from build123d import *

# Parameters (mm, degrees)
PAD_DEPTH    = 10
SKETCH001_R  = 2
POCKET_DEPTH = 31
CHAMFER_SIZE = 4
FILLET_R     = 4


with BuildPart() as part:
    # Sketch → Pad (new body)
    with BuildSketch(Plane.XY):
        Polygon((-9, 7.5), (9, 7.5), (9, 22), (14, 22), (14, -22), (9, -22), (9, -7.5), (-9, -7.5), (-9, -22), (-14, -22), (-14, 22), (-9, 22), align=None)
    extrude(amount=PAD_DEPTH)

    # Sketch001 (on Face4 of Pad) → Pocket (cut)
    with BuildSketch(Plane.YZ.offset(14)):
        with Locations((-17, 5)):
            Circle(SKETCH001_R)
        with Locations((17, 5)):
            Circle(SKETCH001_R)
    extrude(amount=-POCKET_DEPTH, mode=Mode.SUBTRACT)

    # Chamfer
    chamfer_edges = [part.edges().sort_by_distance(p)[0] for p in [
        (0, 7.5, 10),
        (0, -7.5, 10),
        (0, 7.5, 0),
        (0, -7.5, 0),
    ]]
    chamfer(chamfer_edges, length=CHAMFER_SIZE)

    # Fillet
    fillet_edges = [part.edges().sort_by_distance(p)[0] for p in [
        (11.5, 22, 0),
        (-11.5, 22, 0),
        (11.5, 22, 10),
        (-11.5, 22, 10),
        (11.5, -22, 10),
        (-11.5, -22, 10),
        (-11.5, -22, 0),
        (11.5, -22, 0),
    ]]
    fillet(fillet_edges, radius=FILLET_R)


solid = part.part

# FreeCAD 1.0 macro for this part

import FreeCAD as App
import Part
import Sketcher

V = App.Vector
Q = App.Units.Quantity


def edges_at(feature, points):
    """Names of the edges that pass closest to the given points."""
    edges = feature.Shape.Edges
    near = lambda p: min(range(len(edges)), key=lambda i: edges[i].distToShape(Part.Vertex(*p))[0])
    return sorted({f"Edge{near(p) + 1}" for p in points})


def add_polygon(sketch, points):
    """Adds a closed chain of lines whose ends are joined by coincident constraints."""
    first, n = sketch.GeometryCount, len(points)
    for a, b in zip(points, points[1:] + points[:1]):
        sketch.addGeometry(Part.LineSegment(App.Vector(*a, 0), App.Vector(*b, 0)), False)
    for i in range(n):
        sketch.addConstraint(Sketcher.Constraint("Coincident", first + i, 2, first + (i + 1) % n, 1))

doc = App.newDocument("Part")
params = doc.addObject("Spreadsheet::Sheet", "Params")
for row, (alias, value) in enumerate([
    ("sketch1_width", "18 mm"),
    ("sketch1_width2", "5 mm"),
    ("sketch1_height", "44 mm"),
    ("sketch1_height2", "14.5 mm"),
    ("pad1_length", "10 mm"),
    ("sketch2_diameter", "4 mm"),
    ("pocket1_length", "31 mm"),
    ("chamfer_size", "4 mm"),
    ("fillet_radius", "4 mm"),
], start=1):
    params.set(f"A{row}", alias)
    params.set(f"B{row}", "=" + value)
    params.setAlias(f"B{row}", alias)

body = doc.addObject("PartDesign::Body", "Body")

sketch1 = body.newObject("Sketcher::SketchObject", "Sketch")
sketch1.AttachmentSupport = (doc.getObject("XY_Plane"), [""])
sketch1.MapMode = "FlatFace"
add_polygon(sketch1, [(9, 8), (-9, 8), (-9, 22), (-14, 22), (-14, -22), (-9, -22), (-9, -8), (9, -8), (9, -22), (14, -22), (14, 22), (9, 22)])
sketch1.addConstraint(Sketcher.Constraint("Horizontal", 0))
sketch1.addConstraint(Sketcher.Constraint("Vertical", 1))
sketch1.addConstraint(Sketcher.Constraint("Horizontal", 2))
sketch1.addConstraint(Sketcher.Constraint("Vertical", 3))
sketch1.addConstraint(Sketcher.Constraint("Horizontal", 4))
sketch1.addConstraint(Sketcher.Constraint("Vertical", 5))
sketch1.addConstraint(Sketcher.Constraint("Horizontal", 6))
sketch1.addConstraint(Sketcher.Constraint("Vertical", 7))
sketch1.addConstraint(Sketcher.Constraint("Horizontal", 8))
sketch1.addConstraint(Sketcher.Constraint("Vertical", 9))
sketch1.addConstraint(Sketcher.Constraint("Horizontal", 10))
sketch1.addConstraint(Sketcher.Constraint("Vertical", 11))
sketch1.addConstraint(Sketcher.Constraint("Symmetric", 0, 2, 6, 2, -1, 1))
sketch1.addConstraint(Sketcher.Constraint("Symmetric", 2, 2, 8, 2, -1, 1))
sketch1.addConstraint(Sketcher.Constraint("Symmetric", 4, 2, 10, 2, -1, 1))
sketch1.addConstraint(Sketcher.Constraint("Symmetric", 4, 2, 7, 2, -2))
sketch1.addConstraint(Sketcher.Constraint("DistanceX", 0, 2, 0, 1, Q("18 mm")))
sketch1.addConstraint(Sketcher.Constraint("DistanceX", 2, 2, 2, 1, Q("5 mm")))
sketch1.addConstraint(Sketcher.Constraint("DistanceY", 3, 2, 3, 1, Q("44 mm")))
sketch1.addConstraint(Sketcher.Constraint("DistanceY", 1, 1, 1, 2, Q("14.5 mm")))
sketch1.setExpression("Constraints[28]", "Params.sketch1_width")
sketch1.setExpression("Constraints[29]", "Params.sketch1_width2")
sketch1.setExpression("Constraints[30]", "Params.sketch1_height")
sketch1.setExpression("Constraints[31]", "Params.sketch1_height2")
pad1 = body.newObject("PartDesign::Pad", "Pad")
pad1.Profile = sketch1
pad1.setExpression("Length", "Params.pad1_length")

sketch2 = body.newObject("Sketcher::SketchObject", "Sketch001")
sketch2.AttachmentSupport = (doc.getObject("YZ_Plane"), [""])
sketch2.MapMode = "FlatFace"
sketch2.AttachmentOffset = App.Placement(V(0, 0, 14), App.Rotation())
sketch2.addGeometry(Part.Circle(V(-17, 5, 0), V(0, 0, 1), 2), False)
sketch2.addGeometry(Part.Circle(V(17, 5, 0), V(0, 0, 1), 2), False)
sketch2.addConstraint(Sketcher.Constraint("Equal", 0, 1))
sketch2.addConstraint(Sketcher.Constraint("Symmetric", 0, 3, 1, 3, -2))
sketch2.addConstraint(Sketcher.Constraint("Diameter", 0, Q("4 mm")))
sketch2.addConstraint(Sketcher.Constraint("DistanceX", 0, 3, -1, 1, Q("17 mm")))
sketch2.addConstraint(Sketcher.Constraint("DistanceY", -1, 1, 0, 3, Q("5 mm")))
sketch2.setExpression("Constraints[2]", "Params.sketch2_diameter")
pocket1 = body.newObject("PartDesign::Pocket", "Pocket")
pocket1.Profile = sketch2
pocket1.setExpression("Length", "Params.pocket1_length")
doc.recompute()

chamfer = body.newObject("PartDesign::Chamfer", "Chamfer")
chamfer.Base = (pocket1, edges_at(pocket1, [
    (0, 7.5, 10),
    (0, -7.5, 10),
    (0, 7.5, 0),
    (0, -7.5, 0),
]))
chamfer.setExpression("Size", "Params.chamfer_size")
doc.recompute()

fillet = body.newObject("PartDesign::Fillet", "Fillet")
fillet.Base = (chamfer, edges_at(chamfer, [
    (11.5, 22, 0),
    (-11.5, 22, 0),
    (11.5, 22, 10),
    (-11.5, 22, 10),
    (11.5, -22, 10),
    (-11.5, -22, 10),
    (-11.5, -22, 0),
    (11.5, -22, 0),
]))
fillet.setExpression("Radius", "Params.fillet_radius")

doc.recompute()
